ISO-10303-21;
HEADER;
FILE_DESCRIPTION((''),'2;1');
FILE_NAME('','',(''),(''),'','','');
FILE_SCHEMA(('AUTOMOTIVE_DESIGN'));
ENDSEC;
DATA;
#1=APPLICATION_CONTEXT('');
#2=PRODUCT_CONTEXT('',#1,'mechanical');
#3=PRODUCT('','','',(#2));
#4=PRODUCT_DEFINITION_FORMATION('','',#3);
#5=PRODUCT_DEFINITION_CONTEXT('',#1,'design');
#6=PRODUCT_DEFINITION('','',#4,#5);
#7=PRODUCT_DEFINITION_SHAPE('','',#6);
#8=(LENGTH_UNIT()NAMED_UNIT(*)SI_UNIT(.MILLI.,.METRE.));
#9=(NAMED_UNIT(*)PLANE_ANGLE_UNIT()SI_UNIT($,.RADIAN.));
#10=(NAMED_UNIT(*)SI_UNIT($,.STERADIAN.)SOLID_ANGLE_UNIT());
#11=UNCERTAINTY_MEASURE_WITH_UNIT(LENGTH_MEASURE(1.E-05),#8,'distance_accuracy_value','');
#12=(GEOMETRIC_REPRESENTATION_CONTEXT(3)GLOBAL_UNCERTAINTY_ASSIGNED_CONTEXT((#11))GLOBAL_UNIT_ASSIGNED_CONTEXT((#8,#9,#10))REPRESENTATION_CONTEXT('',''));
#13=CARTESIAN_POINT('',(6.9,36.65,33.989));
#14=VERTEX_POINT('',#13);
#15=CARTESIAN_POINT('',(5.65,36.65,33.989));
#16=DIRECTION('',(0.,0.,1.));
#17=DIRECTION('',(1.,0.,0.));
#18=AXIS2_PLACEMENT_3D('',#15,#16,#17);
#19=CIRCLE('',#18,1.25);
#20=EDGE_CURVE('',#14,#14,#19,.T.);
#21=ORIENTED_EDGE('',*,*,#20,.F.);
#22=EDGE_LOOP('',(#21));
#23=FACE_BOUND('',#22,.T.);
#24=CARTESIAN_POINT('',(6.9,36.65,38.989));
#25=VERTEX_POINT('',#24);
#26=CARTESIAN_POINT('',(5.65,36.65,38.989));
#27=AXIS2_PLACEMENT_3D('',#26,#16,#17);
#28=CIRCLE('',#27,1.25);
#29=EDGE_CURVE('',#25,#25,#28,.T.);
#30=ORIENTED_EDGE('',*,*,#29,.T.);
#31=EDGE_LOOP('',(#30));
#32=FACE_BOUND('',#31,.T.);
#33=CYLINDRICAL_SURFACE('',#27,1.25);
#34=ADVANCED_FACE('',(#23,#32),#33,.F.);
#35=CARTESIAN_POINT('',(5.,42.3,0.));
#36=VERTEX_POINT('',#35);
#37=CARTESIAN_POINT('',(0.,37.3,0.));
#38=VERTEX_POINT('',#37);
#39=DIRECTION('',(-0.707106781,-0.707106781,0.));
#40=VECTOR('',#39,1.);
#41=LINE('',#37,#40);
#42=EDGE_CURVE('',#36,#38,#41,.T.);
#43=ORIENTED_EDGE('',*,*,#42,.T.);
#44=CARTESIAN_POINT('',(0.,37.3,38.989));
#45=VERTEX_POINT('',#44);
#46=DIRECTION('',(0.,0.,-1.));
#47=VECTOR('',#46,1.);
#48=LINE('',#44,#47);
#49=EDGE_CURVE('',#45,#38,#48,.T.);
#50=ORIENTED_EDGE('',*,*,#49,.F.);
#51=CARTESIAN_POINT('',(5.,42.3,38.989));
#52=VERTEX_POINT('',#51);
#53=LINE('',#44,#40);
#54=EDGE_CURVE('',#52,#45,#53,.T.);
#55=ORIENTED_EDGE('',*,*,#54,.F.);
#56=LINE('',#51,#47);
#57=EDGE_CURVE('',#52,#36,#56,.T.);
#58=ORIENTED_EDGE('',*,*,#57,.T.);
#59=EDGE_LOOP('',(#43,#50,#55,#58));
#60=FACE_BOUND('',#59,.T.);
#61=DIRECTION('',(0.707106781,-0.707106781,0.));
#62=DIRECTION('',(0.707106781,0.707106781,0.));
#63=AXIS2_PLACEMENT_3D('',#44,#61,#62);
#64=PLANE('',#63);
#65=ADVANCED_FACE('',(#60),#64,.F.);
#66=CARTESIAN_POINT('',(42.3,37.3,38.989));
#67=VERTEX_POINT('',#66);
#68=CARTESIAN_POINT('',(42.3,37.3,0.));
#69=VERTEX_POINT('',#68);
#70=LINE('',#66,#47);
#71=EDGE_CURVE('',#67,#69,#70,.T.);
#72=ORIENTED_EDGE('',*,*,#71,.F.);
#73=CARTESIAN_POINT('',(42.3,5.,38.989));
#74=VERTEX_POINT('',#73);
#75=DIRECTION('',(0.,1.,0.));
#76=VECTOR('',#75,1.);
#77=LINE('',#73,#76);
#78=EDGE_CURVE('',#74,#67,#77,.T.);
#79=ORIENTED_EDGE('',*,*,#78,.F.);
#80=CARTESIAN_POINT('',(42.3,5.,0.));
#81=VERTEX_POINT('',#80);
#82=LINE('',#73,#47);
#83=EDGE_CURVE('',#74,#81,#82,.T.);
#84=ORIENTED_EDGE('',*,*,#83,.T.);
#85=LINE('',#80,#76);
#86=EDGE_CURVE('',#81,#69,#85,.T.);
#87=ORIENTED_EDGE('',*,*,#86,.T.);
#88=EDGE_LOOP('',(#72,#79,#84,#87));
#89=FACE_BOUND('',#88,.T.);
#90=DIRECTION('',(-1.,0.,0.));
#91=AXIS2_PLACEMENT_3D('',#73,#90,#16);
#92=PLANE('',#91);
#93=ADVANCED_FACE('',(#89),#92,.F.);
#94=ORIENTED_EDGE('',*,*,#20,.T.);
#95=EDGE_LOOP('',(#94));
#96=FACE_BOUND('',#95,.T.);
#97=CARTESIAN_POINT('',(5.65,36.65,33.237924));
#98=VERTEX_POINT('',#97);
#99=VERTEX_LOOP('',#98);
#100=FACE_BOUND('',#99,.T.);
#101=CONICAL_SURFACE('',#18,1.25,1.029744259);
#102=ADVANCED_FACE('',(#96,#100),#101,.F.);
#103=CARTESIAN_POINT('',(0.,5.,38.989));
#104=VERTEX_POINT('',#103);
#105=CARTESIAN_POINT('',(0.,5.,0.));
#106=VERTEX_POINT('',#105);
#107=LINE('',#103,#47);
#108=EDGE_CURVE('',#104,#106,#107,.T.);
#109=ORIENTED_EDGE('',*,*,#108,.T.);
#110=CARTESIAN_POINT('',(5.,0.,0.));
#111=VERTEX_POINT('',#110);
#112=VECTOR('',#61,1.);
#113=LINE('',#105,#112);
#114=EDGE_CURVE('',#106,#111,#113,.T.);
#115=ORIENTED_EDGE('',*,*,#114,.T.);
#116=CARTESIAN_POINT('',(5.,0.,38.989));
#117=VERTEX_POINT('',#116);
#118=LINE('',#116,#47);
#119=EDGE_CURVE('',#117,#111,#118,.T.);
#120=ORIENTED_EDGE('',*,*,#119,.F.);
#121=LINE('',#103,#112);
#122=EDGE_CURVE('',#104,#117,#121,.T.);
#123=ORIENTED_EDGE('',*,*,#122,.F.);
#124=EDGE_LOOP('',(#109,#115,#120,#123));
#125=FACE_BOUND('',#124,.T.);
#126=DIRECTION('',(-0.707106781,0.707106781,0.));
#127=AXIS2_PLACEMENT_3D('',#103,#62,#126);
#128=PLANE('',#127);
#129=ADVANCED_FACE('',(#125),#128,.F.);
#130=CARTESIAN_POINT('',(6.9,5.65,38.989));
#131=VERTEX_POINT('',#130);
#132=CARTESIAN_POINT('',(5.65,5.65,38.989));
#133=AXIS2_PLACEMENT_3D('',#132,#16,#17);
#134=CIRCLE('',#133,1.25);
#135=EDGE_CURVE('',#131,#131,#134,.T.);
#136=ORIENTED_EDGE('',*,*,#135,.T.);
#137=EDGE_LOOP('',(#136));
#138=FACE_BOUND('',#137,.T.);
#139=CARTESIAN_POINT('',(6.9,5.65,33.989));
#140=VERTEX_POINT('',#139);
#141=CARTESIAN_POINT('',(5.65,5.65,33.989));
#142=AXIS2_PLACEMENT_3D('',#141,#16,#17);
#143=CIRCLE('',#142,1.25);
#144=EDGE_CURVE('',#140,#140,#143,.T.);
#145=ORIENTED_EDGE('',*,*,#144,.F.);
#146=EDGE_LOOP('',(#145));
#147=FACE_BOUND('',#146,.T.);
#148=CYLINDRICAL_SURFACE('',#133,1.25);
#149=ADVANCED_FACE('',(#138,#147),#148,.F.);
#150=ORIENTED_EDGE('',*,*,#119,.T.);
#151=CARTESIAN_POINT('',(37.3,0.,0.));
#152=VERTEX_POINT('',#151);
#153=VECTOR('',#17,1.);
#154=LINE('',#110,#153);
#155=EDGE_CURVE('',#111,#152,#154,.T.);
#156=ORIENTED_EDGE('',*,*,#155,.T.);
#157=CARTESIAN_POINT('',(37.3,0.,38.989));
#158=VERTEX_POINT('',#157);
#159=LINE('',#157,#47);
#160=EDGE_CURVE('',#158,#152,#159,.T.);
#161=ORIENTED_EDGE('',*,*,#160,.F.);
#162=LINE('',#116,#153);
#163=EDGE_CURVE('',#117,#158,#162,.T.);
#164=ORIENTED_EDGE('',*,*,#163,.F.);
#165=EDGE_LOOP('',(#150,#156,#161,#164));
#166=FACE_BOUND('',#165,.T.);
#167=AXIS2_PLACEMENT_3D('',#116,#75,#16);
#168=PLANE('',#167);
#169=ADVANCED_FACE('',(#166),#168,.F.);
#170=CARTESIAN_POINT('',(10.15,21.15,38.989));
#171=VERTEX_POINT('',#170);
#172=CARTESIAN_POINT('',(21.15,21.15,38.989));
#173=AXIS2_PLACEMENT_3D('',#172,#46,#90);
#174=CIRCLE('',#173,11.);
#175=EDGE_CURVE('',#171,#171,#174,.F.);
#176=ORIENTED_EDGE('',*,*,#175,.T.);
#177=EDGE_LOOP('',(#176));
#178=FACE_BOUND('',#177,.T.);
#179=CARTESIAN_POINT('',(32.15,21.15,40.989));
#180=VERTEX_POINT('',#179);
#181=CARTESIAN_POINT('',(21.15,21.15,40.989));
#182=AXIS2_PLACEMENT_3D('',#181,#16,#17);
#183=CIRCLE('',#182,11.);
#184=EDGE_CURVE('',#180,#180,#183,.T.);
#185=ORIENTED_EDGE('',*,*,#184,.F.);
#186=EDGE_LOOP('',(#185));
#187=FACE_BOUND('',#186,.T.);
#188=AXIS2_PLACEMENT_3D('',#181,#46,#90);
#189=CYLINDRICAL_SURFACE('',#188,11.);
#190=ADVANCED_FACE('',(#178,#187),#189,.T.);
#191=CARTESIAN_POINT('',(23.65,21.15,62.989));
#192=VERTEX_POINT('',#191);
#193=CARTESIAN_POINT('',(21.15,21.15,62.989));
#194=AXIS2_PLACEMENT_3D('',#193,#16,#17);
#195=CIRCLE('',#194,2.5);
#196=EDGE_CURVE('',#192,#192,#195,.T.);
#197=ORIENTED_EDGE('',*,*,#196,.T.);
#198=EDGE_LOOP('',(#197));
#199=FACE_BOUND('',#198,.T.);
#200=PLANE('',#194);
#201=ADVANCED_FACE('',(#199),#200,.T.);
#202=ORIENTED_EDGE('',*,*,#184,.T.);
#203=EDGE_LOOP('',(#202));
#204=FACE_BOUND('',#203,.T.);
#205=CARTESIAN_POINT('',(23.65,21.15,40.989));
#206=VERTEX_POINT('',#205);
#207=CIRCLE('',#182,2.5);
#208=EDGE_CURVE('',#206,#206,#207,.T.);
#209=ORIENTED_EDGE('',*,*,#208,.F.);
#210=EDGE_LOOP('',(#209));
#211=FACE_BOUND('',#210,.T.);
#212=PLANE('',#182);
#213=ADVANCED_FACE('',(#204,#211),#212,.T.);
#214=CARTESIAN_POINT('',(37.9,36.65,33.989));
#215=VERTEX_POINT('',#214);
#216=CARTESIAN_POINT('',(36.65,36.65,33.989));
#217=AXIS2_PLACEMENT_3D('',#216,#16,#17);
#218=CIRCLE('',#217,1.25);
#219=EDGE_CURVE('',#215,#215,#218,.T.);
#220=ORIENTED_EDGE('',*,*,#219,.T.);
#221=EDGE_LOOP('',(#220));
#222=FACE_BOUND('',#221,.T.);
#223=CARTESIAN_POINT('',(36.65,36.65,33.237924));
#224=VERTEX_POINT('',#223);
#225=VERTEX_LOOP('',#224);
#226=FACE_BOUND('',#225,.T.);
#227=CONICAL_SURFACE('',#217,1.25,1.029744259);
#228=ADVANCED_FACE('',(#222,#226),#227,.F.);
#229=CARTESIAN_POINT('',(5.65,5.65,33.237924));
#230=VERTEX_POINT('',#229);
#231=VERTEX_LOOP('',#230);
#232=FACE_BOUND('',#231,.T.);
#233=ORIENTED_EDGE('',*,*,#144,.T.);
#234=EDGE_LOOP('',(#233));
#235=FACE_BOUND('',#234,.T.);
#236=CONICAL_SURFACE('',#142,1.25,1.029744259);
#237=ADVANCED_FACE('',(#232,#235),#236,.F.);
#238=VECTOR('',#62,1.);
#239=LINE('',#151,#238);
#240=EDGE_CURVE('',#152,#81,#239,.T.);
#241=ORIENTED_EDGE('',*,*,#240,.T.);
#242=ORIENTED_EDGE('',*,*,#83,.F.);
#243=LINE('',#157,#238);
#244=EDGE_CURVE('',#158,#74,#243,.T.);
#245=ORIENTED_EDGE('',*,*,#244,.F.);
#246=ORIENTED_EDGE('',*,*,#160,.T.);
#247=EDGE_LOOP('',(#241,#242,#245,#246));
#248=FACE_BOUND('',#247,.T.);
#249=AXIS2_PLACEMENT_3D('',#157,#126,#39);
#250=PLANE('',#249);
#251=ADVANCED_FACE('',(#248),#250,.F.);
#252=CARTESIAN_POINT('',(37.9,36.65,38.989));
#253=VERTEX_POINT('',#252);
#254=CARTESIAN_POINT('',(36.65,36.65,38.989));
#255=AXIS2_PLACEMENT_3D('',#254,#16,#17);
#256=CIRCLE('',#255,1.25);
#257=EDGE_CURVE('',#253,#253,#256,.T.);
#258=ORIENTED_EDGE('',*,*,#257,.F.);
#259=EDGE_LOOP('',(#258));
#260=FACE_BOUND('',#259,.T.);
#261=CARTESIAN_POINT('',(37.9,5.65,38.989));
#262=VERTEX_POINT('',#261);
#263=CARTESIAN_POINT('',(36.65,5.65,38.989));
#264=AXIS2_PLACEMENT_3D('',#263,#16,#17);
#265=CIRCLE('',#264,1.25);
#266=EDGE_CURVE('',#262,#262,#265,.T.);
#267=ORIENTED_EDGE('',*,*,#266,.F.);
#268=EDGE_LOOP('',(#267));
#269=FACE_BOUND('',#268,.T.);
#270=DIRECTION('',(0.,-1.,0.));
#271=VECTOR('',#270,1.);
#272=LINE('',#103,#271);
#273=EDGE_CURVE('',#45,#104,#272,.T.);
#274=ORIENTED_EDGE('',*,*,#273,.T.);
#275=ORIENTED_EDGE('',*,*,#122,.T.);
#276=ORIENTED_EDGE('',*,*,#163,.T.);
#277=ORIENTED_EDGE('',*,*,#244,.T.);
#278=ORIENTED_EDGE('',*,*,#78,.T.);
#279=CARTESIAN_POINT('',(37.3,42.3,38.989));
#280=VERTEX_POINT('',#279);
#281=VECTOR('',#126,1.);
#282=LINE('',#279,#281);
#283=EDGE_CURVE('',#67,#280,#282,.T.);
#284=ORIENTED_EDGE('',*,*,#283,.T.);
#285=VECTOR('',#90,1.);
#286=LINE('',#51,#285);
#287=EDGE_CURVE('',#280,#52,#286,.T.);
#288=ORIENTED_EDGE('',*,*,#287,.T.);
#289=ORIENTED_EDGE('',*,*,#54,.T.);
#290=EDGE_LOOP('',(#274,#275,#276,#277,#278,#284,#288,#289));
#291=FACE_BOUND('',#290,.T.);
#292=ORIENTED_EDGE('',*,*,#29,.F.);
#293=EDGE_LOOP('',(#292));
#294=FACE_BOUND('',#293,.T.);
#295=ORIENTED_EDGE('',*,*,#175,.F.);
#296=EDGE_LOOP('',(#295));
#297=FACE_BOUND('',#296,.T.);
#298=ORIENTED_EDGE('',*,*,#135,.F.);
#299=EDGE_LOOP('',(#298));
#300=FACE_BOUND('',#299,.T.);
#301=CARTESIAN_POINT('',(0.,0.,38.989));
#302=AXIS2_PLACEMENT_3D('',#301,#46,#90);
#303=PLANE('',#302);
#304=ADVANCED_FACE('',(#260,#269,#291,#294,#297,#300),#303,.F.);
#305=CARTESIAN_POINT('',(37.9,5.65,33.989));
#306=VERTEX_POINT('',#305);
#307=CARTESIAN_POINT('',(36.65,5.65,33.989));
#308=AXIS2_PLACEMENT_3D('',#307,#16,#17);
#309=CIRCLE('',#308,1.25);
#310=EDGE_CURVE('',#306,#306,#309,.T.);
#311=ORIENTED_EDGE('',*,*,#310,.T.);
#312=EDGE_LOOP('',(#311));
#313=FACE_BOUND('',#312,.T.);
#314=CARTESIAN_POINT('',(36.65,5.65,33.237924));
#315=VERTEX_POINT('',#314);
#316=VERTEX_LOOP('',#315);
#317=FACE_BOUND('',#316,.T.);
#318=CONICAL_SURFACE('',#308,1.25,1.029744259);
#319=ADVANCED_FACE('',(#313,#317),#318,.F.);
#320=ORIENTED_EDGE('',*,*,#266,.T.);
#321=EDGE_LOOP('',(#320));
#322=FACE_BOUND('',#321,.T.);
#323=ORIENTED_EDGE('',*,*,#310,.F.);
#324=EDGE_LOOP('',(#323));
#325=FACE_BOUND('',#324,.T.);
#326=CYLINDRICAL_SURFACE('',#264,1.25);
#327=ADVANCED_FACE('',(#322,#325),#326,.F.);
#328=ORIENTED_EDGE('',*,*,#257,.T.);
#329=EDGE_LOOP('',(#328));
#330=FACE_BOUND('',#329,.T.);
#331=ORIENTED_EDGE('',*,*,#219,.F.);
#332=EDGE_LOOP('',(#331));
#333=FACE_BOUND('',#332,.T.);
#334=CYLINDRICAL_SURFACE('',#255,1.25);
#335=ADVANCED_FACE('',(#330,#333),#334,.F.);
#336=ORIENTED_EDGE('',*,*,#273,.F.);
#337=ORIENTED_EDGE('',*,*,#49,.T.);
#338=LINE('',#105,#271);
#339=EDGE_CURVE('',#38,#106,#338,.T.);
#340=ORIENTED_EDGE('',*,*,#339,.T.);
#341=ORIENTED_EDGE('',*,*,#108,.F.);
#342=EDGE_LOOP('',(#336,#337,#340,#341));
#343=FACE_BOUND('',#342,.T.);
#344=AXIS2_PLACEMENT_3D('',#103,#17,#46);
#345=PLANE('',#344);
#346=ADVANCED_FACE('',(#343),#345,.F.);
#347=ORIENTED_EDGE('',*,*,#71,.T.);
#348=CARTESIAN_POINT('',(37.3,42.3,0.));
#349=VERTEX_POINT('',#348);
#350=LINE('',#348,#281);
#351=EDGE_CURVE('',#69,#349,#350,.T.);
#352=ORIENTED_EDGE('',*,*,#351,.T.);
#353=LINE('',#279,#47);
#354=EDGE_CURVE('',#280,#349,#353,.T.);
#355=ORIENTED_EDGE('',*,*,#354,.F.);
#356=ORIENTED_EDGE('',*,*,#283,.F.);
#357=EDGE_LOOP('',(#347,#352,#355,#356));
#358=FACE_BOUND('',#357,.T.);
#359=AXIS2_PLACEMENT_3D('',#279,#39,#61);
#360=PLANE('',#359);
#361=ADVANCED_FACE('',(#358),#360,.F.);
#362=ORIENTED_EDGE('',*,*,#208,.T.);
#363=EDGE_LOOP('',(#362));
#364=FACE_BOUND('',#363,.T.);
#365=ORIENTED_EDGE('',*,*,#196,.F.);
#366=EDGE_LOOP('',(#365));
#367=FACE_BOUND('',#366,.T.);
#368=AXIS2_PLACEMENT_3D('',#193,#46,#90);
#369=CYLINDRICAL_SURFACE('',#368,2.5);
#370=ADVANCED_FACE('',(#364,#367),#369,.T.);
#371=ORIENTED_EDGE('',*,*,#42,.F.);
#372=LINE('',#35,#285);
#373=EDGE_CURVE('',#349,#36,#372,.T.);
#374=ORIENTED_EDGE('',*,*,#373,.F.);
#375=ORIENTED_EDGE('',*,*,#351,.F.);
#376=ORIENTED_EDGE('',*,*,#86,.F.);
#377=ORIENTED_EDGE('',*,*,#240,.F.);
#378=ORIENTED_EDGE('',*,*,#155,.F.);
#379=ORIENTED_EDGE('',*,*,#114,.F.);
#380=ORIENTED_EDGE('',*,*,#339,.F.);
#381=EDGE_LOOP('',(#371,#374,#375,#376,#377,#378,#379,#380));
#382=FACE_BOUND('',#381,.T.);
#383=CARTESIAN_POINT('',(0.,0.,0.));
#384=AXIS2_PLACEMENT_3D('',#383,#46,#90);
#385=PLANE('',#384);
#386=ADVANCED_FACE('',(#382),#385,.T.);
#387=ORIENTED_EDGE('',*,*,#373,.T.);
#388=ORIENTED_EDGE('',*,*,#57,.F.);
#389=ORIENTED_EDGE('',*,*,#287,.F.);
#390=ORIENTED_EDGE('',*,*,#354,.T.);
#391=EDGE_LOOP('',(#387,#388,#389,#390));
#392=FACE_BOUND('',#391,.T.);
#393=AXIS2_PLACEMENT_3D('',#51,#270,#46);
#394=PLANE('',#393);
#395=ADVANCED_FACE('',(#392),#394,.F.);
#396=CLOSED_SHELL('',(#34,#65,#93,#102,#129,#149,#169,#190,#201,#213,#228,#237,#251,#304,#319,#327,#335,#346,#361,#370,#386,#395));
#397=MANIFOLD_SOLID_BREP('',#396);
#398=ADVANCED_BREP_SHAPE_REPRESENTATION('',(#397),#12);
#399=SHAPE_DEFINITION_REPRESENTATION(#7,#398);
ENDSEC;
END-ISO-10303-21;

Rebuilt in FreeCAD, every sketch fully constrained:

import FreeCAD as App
import Part
import Sketcher
Q = App.Units.Quantity


def add_polygon(sketch, points):
    """Adds a closed chain of lines whose ends are joined by coincident constraints."""
    first, n = sketch.GeometryCount, len(points)
    for a, b in zip(points, points[1:] + points[:1]):
        sketch.addGeometry(Part.LineSegment(App.Vector(*a, 0), App.Vector(*b, 0)), False)
    for i in range(n):
        sketch.addConstraint(Sketcher.Constraint("Coincident", first + i, 2, first + (i + 1) % n, 1))

doc = App.newDocument("Part")
params = doc.addObject("Spreadsheet::Sheet", "Params")
for row, (alias, value) in enumerate([
    ("sketch1_width", "32.3 mm"),
    ("pad1_length", "38.989 mm"),
    ("sketch2_diameter", "2.5 mm"),
    ("hole_diameter", "2.5 mm"),
    ("hole_depth", "5 mm"),
    ("sketch3_diameter", "22 mm"),
    ("pad2_length", "2 mm"),
    ("sketch4_diameter", "5 mm"),
    ("pad3_length", "22 mm"),
], start=1):
    params.set(f"A{row}", alias)
    params.set(f"B{row}", "=" + value)
    params.setAlias(f"B{row}", alias)

body = doc.addObject("PartDesign::Body", "Body")

# Sketch on XY plane
sketch1 = body.newObject("Sketcher::SketchObject", "Sketch")
sketch1.AttachmentSupport = (doc.getObject("XY_Plane"), [""])
sketch1.MapMode = "FlatFace"
add_polygon(sketch1, [(5, 42), (0, 37), (0, 5), (5, 0), (37, 0), (42, 5), (42, 37), (37, 42)])  # lines 0-7
sketch1.addConstraint([
    Sketcher.Constraint("Vertical", 1),
    Sketcher.Constraint("Horizontal", 3),
    Sketcher.Constraint("Vertical", 5),
    Sketcher.Constraint("Horizontal", 7),
    Sketcher.Constraint("PointOnObject", 0, 2, -2),
    Sketcher.Constraint("PointOnObject", 2, 2, -1),
    Sketcher.Constraint("Perpendicular", 0, 2),
    Sketcher.Constraint("Perpendicular", 2, 4),
    Sketcher.Constraint("Perpendicular", 4, 6),
    Sketcher.Constraint("Horizontal", 1, 2, 4, 2),
    Sketcher.Constraint("Horizontal", 0, 2, 5, 2),
    Sketcher.Constraint("Vertical", 3, 2, 6, 2),
    Sketcher.Constraint("Vertical", 2, 2, 7, 2),
    Sketcher.Constraint("Equal", 7, 1),
    Sketcher.Constraint("DistanceX", 3, 1, 3, 2, Q("32.3 mm")),
    Sketcher.Constraint("DistanceY", -1, 1, 1, 2, Q("5 mm")),
])
sketch1.setExpression("Constraints[22]", "Params.sketch1_width")
pad1 = body.newObject("PartDesign::Pad", "Pad")
pad1.Profile = sketch1
pad1.setExpression("Length", "Params.pad1_length")

# Sketch on XY plane
sketch2 = body.newObject("Sketcher::SketchObject", "Sketch001")
sketch2.AttachmentSupport = (doc.getObject("XY_Plane"), [""])
sketch2.MapMode = "FlatFace"
sketch2.AttachmentOffset = App.Placement(App.Vector(0, 0, 38.989), App.Rotation())
sketch2.addGeometry([
    Part.Circle(App.Vector(5.7, 36.6, 0), App.Vector(0, 0, 1), 1.2),
    Part.Circle(App.Vector(36.6, 36.6, 0), App.Vector(0, 0, 1), 1.2),
    Part.Circle(App.Vector(36.6, 5.7, 0), App.Vector(0, 0, 1), 1.2),
    Part.Circle(App.Vector(5.7, 5.7, 0), App.Vector(0, 0, 1), 1.2),
], False)
sketch2.addConstraint([
    Sketcher.Constraint("Equal", 0, 1),
    Sketcher.Constraint("Equal", 1, 2),
    Sketcher.Constraint("Equal", 2, 3),
    Sketcher.Constraint("Horizontal", 0, 3, 1, 3),
    Sketcher.Constraint("Horizontal", 2, 3, 3, 3),
    Sketcher.Constraint("Vertical", 1, 3, 2, 3),
    Sketcher.Constraint("Vertical", 0, 3, 3, 3),
    Sketcher.Constraint("Diameter", 0, Q("2.5 mm")),
    Sketcher.Constraint("DistanceX", 0, 3, 1, 3, Q("31 mm")),
    Sketcher.Constraint("DistanceY", 2, 3, 1, 3, Q("31 mm")),
    Sketcher.Constraint("DistanceX", -1, 1, 0, 3, Q("5.65 mm")),
    Sketcher.Constraint("DistanceY", -1, 1, 0, 3, Q("36.65 mm")),
])
sketch2.setExpression("Constraints[7]", "Params.sketch2_diameter")
doc.recompute()
hole = body.newObject("PartDesign::Hole", "Hole")
hole.Profile = sketch2
hole.ThreadType = "None"
hole.setExpression("Diameter", "Params.hole_diameter")
hole.DepthType = "Dimension"
hole.setExpression("Depth", "Params.hole_depth")
hole.DrillPoint = "Angled"
hole.DrillPointAngle = 118

# Sketch on XY plane
sketch3 = body.newObject("Sketcher::SketchObject", "Sketch002")
sketch3.AttachmentSupport = (doc.getObject("XY_Plane"), [""])
sketch3.MapMode = "FlatFace"
sketch3.AttachmentOffset = App.Placement(App.Vector(0, 0, 38.989), App.Rotation())
sketch3.addGeometry(Part.Circle(App.Vector(21, 21, 0), App.Vector(0, 0, 1), 11), False)
sketch3.addConstraint([
    Sketcher.Constraint("Diameter", 0, Q("22 mm")),
    Sketcher.Constraint("DistanceX", -1, 1, 0, 3, Q("21.15 mm")),
    Sketcher.Constraint("DistanceY", -1, 1, 0, 3, Q("21.15 mm")),
])
sketch3.setExpression("Constraints[0]", "Params.sketch3_diameter")
pad2 = body.newObject("PartDesign::Pad", "Pad001")
pad2.Profile = sketch3
pad2.setExpression("Length", "Params.pad2_length")

# Sketch on XY plane
sketch4 = body.newObject("Sketcher::SketchObject", "Sketch003")
sketch4.AttachmentSupport = (doc.getObject("XY_Plane"), [""])
sketch4.MapMode = "FlatFace"
sketch4.AttachmentOffset = App.Placement(App.Vector(0, 0, 40.989), App.Rotation())
sketch4.addGeometry(Part.Circle(App.Vector(21.1, 21.1, 0), App.Vector(0, 0, 1), 2.5), False)
sketch4.addConstraint([
    Sketcher.Constraint("Diameter", 0, Q("5 mm")),
    Sketcher.Constraint("DistanceX", -1, 1, 0, 3, Q("21.15 mm")),
    Sketcher.Constraint("DistanceY", -1, 1, 0, 3, Q("21.15 mm")),
])
sketch4.setExpression("Constraints[0]", "Params.sketch4_diameter")
pad3 = body.newObject("PartDesign::Pad", "Pad002")
pad3.Profile = sketch4
pad3.setExpression("Length", "Params.pad3_length")

doc.recompute()
